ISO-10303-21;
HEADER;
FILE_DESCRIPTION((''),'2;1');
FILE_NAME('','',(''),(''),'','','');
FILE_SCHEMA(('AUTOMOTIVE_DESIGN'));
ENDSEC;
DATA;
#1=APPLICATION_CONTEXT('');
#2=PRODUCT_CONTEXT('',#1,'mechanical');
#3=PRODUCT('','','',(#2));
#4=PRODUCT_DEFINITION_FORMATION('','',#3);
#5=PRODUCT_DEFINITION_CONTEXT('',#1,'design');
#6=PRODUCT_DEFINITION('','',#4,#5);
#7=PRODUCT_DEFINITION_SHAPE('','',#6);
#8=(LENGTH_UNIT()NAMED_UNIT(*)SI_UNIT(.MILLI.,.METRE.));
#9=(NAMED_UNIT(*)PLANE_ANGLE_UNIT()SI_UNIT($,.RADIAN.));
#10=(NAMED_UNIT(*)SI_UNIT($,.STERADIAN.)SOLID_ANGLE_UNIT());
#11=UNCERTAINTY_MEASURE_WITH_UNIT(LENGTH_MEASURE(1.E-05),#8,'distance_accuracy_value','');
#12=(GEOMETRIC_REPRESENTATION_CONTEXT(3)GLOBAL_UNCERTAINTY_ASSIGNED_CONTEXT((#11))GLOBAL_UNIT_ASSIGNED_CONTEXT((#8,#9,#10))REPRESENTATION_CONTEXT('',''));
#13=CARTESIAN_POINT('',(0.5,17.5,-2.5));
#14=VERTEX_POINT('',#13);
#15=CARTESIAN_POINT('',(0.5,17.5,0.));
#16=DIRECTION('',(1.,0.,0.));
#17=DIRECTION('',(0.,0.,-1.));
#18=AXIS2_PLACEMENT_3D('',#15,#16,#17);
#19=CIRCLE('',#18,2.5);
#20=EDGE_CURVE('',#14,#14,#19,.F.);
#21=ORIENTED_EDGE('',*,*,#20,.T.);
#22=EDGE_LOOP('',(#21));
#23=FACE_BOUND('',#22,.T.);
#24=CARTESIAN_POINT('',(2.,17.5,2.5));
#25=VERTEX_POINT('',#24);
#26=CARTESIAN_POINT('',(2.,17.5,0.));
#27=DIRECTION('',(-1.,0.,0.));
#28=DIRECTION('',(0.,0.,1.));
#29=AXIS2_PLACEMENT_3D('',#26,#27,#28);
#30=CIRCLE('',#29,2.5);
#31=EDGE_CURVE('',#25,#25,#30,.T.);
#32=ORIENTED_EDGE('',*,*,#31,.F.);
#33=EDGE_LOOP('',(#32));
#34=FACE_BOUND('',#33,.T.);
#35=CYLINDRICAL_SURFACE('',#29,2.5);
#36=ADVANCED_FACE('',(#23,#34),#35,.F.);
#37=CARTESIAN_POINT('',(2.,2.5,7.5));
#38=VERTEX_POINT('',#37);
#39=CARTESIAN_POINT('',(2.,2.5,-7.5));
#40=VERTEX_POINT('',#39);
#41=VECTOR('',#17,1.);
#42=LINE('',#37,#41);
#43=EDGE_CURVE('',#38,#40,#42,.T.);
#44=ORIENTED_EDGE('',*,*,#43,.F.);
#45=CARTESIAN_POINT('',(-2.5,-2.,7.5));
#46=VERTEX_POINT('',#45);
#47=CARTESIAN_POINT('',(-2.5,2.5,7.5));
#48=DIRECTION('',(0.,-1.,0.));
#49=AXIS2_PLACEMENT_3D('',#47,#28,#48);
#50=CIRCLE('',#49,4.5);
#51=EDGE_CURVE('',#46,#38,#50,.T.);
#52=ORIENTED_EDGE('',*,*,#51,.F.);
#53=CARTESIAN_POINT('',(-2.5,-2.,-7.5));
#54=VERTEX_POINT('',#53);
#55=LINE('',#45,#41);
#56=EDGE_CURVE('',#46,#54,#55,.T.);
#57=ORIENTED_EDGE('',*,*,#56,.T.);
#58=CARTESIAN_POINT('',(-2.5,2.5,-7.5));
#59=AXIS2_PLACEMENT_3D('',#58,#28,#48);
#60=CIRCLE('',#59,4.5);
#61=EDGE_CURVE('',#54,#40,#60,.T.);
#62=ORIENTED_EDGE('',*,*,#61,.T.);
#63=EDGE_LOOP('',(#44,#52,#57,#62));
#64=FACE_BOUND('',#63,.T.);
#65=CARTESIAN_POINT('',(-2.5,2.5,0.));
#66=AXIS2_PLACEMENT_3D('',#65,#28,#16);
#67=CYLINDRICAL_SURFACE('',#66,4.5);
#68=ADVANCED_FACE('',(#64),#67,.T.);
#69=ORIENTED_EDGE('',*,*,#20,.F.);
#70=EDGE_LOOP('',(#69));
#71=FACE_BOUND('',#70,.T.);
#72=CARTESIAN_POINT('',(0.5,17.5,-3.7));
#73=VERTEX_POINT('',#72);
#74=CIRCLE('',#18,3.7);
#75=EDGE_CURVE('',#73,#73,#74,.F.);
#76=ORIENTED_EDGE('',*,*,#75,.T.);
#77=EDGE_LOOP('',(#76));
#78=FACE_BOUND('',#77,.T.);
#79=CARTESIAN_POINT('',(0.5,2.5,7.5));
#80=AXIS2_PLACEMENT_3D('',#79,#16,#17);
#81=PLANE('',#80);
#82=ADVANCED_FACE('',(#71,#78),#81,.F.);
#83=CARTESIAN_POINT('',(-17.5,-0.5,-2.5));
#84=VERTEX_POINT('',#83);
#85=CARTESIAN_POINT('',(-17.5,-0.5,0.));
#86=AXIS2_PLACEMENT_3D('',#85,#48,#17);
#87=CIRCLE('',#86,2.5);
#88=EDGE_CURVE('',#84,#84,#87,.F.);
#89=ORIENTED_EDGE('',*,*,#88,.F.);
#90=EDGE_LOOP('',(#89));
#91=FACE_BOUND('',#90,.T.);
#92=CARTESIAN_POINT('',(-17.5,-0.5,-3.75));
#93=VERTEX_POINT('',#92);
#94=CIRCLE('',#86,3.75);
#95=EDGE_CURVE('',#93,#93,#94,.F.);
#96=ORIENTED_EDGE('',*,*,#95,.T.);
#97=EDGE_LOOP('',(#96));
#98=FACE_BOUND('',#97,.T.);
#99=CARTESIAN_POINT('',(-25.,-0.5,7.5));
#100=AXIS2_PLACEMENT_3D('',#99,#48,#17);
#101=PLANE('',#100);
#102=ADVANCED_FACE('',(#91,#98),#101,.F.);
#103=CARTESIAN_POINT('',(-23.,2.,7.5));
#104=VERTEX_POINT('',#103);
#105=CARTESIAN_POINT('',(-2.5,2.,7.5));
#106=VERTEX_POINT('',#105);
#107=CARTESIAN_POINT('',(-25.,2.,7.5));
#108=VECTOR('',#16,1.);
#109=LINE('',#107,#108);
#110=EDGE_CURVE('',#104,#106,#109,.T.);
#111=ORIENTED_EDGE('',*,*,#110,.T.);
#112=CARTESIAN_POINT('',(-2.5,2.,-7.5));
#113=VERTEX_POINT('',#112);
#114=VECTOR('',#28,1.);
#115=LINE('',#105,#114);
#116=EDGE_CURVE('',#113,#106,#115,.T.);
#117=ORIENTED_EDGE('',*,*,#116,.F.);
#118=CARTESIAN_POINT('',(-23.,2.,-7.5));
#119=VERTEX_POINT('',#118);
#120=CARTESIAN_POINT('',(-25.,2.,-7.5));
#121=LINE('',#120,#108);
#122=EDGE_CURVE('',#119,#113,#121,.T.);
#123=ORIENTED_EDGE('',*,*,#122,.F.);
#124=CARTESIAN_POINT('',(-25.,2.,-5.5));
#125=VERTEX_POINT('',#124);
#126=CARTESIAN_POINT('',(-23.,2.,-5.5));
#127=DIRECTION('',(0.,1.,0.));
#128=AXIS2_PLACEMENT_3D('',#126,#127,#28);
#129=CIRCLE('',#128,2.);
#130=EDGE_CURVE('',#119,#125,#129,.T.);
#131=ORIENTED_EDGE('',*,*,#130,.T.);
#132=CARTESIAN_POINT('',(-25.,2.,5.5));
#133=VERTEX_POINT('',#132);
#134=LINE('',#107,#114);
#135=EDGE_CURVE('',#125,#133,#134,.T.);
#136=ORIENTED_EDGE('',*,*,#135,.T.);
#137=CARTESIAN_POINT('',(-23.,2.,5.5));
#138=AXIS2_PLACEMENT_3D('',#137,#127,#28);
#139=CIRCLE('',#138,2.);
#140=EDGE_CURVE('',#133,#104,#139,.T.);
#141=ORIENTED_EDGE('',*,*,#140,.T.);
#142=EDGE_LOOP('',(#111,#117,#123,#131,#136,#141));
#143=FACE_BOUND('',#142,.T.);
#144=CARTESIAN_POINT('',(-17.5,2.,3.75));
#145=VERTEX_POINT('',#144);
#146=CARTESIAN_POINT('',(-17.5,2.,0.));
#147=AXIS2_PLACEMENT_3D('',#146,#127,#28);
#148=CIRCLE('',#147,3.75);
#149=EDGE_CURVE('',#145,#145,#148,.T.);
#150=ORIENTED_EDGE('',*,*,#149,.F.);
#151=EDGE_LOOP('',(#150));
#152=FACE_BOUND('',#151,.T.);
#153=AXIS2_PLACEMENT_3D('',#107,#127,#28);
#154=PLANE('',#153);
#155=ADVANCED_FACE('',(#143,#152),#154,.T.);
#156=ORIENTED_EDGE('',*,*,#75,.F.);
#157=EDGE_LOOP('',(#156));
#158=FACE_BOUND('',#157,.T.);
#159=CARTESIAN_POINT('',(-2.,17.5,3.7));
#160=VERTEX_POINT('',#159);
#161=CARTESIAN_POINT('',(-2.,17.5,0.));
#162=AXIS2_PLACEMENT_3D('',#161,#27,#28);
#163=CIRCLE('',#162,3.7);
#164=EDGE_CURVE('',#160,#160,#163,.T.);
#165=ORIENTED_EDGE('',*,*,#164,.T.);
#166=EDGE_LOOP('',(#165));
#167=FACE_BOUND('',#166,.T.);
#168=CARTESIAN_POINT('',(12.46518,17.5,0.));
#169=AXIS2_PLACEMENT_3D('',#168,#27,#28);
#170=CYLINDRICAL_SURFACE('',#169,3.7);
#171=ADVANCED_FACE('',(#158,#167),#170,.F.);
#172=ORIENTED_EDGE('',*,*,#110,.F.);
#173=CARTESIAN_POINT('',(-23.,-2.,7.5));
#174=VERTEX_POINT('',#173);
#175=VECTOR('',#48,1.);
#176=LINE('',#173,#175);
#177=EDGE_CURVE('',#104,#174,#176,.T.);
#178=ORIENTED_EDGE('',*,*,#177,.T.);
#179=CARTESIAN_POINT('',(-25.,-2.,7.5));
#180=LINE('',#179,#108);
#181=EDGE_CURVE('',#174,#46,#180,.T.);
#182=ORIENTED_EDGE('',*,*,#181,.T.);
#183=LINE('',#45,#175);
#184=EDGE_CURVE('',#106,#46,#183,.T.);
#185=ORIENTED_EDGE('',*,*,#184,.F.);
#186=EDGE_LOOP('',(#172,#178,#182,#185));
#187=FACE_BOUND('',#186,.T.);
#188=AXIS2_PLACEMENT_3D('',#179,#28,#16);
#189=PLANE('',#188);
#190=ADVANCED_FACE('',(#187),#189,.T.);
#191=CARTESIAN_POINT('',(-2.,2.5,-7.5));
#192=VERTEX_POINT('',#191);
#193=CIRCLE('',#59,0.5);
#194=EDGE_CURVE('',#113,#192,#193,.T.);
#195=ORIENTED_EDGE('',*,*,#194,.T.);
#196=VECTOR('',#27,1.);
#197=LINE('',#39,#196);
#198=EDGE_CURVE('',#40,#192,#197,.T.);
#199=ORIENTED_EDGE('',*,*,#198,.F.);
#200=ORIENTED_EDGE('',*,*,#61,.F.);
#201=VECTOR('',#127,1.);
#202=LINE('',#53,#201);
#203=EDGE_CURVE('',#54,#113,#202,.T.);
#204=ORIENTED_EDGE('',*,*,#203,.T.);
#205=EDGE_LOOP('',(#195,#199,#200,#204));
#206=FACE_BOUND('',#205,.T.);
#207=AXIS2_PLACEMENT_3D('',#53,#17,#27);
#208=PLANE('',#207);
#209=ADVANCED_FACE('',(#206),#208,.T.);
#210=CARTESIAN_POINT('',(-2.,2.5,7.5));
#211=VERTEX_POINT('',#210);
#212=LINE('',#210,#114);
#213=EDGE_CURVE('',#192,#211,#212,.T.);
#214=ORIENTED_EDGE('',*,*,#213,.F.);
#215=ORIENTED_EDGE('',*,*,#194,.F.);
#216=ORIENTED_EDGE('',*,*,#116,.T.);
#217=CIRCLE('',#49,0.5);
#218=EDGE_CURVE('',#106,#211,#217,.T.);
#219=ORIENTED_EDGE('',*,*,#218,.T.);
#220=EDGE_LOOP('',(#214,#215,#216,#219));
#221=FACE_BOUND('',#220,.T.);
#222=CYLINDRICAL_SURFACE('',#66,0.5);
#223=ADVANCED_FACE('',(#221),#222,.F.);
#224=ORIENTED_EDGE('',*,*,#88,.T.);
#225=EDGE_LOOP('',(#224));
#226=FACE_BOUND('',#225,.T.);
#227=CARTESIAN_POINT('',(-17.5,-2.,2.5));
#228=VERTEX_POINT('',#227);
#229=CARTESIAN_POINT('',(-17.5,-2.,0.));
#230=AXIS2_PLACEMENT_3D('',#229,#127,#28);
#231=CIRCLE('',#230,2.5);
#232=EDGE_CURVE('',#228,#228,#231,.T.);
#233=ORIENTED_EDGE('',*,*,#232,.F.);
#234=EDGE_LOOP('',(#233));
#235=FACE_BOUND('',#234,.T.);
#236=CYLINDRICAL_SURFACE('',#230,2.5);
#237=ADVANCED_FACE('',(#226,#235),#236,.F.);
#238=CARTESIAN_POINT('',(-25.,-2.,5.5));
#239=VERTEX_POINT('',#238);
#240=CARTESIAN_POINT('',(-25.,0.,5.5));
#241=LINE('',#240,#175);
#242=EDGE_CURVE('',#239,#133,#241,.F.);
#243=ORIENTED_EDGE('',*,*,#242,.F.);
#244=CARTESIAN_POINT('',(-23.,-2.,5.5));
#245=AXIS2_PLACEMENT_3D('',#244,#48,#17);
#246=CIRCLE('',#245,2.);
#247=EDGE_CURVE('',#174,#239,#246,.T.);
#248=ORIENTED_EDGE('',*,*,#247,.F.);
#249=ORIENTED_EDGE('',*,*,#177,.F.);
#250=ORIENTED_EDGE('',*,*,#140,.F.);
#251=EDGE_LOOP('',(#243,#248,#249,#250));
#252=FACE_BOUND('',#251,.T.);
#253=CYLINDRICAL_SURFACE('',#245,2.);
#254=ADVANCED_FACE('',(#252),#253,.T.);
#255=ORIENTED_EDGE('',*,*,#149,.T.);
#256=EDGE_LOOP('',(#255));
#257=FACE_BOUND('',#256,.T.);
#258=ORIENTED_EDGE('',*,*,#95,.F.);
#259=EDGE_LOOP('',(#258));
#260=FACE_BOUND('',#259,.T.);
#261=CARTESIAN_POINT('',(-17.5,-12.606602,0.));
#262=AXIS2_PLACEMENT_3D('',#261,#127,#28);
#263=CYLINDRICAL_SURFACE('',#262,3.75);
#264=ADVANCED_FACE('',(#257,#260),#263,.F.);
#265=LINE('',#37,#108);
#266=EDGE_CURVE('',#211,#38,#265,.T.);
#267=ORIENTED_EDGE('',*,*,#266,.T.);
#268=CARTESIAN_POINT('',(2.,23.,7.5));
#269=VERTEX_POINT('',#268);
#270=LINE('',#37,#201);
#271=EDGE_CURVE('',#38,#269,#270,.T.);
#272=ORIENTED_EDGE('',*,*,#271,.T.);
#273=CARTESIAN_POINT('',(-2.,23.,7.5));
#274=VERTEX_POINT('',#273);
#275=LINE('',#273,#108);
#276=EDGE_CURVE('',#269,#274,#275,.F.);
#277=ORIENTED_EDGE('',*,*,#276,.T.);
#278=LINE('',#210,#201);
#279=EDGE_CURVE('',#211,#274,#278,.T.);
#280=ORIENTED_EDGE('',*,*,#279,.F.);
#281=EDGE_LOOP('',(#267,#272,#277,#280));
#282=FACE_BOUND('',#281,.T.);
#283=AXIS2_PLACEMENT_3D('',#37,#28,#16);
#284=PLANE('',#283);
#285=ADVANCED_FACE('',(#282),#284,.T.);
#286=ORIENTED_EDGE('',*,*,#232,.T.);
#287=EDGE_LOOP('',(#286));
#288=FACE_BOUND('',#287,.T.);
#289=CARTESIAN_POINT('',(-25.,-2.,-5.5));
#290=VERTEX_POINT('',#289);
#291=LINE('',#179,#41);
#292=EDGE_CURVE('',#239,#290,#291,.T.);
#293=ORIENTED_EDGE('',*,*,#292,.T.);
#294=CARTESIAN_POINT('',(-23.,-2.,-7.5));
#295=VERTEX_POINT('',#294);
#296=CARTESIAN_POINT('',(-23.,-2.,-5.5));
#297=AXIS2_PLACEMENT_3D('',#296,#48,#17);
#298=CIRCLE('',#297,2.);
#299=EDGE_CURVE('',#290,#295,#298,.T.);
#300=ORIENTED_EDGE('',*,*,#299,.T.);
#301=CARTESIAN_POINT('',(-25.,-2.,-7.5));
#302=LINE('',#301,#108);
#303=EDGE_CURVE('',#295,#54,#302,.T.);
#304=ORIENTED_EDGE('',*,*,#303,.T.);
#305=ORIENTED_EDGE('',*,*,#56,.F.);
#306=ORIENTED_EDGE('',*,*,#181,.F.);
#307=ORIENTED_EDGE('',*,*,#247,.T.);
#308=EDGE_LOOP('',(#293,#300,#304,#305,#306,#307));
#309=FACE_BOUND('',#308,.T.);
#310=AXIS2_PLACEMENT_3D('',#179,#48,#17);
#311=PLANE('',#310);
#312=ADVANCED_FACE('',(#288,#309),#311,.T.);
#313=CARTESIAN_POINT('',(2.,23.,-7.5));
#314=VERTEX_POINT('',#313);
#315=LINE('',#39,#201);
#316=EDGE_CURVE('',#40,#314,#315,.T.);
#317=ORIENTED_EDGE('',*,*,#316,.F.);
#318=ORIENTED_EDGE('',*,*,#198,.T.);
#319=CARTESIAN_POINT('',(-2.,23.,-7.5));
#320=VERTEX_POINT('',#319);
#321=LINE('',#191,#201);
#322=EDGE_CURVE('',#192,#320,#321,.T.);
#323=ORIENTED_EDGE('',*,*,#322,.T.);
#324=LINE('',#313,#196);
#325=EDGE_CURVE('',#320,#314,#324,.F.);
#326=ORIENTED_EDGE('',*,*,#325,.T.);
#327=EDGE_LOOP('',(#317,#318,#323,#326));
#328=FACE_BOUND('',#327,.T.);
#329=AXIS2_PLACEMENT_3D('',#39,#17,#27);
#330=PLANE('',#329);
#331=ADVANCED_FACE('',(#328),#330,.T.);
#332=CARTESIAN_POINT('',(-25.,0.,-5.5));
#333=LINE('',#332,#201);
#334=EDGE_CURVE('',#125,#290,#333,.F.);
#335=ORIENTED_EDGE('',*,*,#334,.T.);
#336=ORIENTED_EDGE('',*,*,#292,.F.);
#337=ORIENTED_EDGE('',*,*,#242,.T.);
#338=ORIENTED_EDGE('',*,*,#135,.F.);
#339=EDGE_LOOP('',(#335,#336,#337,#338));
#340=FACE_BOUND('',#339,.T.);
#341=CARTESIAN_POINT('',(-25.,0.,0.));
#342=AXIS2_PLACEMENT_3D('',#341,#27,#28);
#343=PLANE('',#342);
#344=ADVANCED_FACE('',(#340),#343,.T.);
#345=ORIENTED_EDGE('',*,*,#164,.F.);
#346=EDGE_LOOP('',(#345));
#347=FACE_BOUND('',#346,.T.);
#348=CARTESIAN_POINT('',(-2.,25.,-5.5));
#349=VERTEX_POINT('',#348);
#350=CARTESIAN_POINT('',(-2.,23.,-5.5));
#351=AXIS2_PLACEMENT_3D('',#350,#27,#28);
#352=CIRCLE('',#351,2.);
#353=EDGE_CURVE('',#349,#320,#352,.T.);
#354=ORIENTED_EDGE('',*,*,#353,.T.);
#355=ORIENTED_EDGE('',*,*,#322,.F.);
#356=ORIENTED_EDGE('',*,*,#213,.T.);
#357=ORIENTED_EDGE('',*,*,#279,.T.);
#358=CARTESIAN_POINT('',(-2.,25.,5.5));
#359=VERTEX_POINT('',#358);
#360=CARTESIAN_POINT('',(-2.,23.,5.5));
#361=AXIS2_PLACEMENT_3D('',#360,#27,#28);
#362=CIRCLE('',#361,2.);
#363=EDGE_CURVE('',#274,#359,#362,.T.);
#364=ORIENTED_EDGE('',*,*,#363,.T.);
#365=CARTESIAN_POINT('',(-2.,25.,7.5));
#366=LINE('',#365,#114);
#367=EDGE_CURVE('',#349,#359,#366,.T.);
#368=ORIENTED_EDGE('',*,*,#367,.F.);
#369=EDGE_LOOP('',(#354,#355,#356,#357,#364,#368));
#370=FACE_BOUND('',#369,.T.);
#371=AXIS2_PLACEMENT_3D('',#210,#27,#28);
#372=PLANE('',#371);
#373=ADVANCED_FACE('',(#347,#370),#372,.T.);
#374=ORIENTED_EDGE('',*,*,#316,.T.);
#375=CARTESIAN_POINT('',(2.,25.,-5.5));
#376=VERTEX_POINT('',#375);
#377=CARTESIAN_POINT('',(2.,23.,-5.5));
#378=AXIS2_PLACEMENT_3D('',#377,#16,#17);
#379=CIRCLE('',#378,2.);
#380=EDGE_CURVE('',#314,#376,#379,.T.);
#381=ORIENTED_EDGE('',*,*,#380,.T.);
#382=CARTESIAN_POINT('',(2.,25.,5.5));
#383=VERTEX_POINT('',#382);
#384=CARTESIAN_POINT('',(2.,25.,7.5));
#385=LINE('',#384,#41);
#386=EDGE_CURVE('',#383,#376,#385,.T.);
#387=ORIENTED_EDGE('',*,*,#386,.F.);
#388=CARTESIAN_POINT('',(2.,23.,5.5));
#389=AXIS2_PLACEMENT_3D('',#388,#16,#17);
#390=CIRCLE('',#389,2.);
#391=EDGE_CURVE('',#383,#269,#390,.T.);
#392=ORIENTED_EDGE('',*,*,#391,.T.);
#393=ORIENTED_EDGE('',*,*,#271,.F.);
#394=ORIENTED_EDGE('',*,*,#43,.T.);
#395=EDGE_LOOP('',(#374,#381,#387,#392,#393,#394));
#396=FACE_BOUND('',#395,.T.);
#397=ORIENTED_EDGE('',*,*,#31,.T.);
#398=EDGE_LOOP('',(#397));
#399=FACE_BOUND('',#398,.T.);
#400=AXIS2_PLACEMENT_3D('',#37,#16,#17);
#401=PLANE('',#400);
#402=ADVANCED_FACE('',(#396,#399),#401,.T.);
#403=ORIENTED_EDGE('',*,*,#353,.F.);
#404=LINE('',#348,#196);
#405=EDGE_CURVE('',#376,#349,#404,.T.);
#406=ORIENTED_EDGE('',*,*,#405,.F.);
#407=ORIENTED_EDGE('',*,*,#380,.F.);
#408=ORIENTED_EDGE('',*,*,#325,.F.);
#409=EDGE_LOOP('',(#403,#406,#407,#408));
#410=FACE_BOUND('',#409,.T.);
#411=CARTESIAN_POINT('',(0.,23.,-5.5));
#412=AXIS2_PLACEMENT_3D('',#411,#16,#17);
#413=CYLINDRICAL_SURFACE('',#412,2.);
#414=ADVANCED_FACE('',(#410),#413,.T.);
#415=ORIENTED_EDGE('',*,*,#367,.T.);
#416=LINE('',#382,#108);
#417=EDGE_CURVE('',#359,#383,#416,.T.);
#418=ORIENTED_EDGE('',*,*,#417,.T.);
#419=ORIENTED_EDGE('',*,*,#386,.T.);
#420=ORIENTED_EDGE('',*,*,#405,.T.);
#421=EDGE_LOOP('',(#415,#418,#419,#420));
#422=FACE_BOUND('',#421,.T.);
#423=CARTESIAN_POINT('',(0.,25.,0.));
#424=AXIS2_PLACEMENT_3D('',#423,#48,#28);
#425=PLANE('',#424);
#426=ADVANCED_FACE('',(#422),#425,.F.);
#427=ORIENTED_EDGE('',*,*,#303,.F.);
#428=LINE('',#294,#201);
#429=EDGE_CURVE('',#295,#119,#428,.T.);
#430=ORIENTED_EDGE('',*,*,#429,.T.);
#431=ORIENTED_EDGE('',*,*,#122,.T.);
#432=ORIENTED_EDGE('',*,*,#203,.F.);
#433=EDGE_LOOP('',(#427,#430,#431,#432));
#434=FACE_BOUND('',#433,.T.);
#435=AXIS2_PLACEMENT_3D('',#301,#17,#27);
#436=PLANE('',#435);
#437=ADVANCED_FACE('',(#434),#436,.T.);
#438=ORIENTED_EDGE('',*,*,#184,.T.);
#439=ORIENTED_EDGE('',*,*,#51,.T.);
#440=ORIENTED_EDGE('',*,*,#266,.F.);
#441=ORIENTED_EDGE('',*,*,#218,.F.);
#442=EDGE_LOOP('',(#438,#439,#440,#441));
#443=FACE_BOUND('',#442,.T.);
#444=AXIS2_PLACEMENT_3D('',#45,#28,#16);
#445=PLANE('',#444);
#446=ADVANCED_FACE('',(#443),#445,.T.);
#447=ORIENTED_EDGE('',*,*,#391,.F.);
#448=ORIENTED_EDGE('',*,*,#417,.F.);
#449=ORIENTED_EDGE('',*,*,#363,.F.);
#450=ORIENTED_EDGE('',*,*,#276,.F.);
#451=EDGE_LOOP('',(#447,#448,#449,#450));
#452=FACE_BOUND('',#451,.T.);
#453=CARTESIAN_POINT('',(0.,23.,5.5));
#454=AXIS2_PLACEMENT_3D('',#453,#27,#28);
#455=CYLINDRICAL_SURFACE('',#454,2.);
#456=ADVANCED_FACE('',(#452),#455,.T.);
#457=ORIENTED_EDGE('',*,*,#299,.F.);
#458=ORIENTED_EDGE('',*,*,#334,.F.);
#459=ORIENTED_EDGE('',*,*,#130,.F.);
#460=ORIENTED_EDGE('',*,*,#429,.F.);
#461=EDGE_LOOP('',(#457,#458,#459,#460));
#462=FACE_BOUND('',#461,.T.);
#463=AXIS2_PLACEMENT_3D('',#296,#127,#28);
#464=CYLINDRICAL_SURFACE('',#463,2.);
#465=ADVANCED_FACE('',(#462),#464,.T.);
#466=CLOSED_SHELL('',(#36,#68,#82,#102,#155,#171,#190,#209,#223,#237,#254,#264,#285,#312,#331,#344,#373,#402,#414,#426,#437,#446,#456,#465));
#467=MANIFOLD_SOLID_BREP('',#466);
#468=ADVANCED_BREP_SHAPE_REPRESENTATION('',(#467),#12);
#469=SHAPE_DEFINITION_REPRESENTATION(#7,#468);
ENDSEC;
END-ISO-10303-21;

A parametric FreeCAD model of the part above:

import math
import FreeCAD as App
import Part
import Sketcher

V = App.Vector


def edges_at(feature, points):
    """Names of the edges that pass closest to the given points."""
    edges = feature.Shape.Edges
    near = lambda p: min(range(len(edges)), key=lambda i: edges[i].distToShape(Part.Vertex(*p))[0])
    return sorted({f"Edge{near(p) + 1}" for p in points})


def add_polygon(sketch, points):
    """Adds a closed chain of lines whose ends are joined by coincident constraints."""
    first, n = sketch.GeometryCount, len(points)
    for a, b in zip(points, points[1:] + points[:1]):
        sketch.addGeometry(Part.LineSegment(App.Vector(*a, 0), App.Vector(*b, 0)), False)
    for i in range(n):
        sketch.addConstraint(Sketcher.Constraint("Coincident", first + i, 2, first + (i + 1) % n, 1))

doc = App.newDocument("Part")
body = doc.addObject("PartDesign::Body", "Body")

sketch1 = body.newObject("Sketcher::SketchObject", "Sketch")
sketch1.AttachmentSupport = (doc.getObject("YZ_Plane"), [""])
sketch1.MapMode = "FlatFace"
sketch1.AttachmentOffset = App.Placement(V(0, 0, -25), App.Rotation())
add_polygon(sketch1, [(2, 7.5), (-2, 7.5), (-2, -7.5), (2, -7.5)])
sketch1.addConstraint([
    Sketcher.Constraint("Horizontal", 0),
    Sketcher.Constraint("Vertical", 1),
    Sketcher.Constraint("Horizontal", 2),
    Sketcher.Constraint("Vertical", 3),
    Sketcher.Constraint("Symmetric", 0, 2, 2, 2, -1, 1),
    Sketcher.Constraint("DistanceX", 0, 2, 0, 1, 4.0),
    Sketcher.Constraint("DistanceY", 1, 2, 1, 1, 15.0),
])

sketch2 = body.newObject("Sketcher::SketchObject", "Sketch001")
sketch2.AttachmentSupport = (doc.getObject("XY_Plane"), [""])
sketch2.MapMode = "FlatFace"
sketch2.addGeometry([
    Part.LineSegment(V(-25, 0, 0), V(-2.5, 0, 0)),
    Part.ArcOfCircle(Part.Circle(V(-2.5, 2.5, 0), V(0, 0, 1), 2.5), math.radians(-90), math.radians(0)),
    Part.LineSegment(V(0, 2.5, 0), V(0, 25, 0)),
], False)
sketch2.addConstraint([
    Sketcher.Constraint("Tangent", 0, 2, 1, 1),
    Sketcher.Constraint("Tangent", 1, 2, 2, 1),
    Sketcher.Constraint("Horizontal", 0),
    Sketcher.Constraint("Vertical", 2),
    Sketcher.Constraint("PointOnObject", 0, 1, -1),
    Sketcher.Constraint("PointOnObject", 1, 2, -2),
    Sketcher.Constraint("Equal", 0, 2),
    Sketcher.Constraint("Radius", 1, 2.5),
    Sketcher.Constraint("DistanceX", 0, 1, 0, 2, 22.5),
])
doc.recompute()

additivepipe = body.newObject("PartDesign::AdditivePipe", "AdditivePipe")
additivepipe.Profile = sketch1
additivepipe.Spine = (sketch2, ["Edge1", "Edge2", "Edge3"])

sketch3 = body.newObject("Sketcher::SketchObject", "Sketch002")
sketch3.AttachmentSupport = (doc.getObject("YZ_Plane"), [""])
sketch3.MapMode = "FlatFace"
sketch3.AttachmentOffset = App.Placement(V(0, 0, -2), App.Rotation())
sketch3.addGeometry(Part.Circle(V(17.5, 0, 0), V(0, 0, 1), 2.5), False)
sketch3.addConstraint([
    Sketcher.Constraint("PointOnObject", 0, 3, -1),
    Sketcher.Constraint("Diameter", 0, 5.0),
    Sketcher.Constraint("DistanceX", -1, 1, 0, 3, 17.5),
])
pocket1 = body.newObject("PartDesign::Pocket", "Pocket")
pocket1.Profile = sketch3
pocket1.Type = "ThroughAll"
pocket1.Reversed = True
doc.recompute()

fillet = body.newObject("PartDesign::Fillet", "Fillet")
fillet.Base = (pocket1, edges_at(pocket1, [
    (-25, 0, 7.5),
    (0, 25, -7.5),
    (0, 25, 7.5),
    (-25, 0, -7.5),
]))
fillet.Radius = 2

sketch4 = body.newObject("Sketcher::SketchObject", "Sketch003")
sketch4.AttachmentSupport = (doc.getObject("YZ_Plane"), [""])
sketch4.MapMode = "FlatFace"
sketch4.AttachmentOffset = App.Placement(V(0, 0, -2), App.Rotation())
sketch4.addGeometry(Part.Circle(V(17.5, 0, 0), V(0, 0, 1), 3.7), False)
sketch4.addConstraint([
    Sketcher.Constraint("PointOnObject", 0, 3, -1),
    Sketcher.Constraint("Diameter", 0, 7.4),
    Sketcher.Constraint("DistanceX", -1, 1, 0, 3, 17.5),
])
pocket2 = body.newObject("PartDesign::Pocket", "Pocket001")
pocket2.Profile = sketch4
pocket2.Length = 2.5
pocket2.Reversed = True

sketch5 = body.newObject("Sketcher::SketchObject", "Sketch004")
sketch5.AttachmentSupport = (doc.getObject("XZ_Plane"), [""])
sketch5.MapMode = "FlatFace"
sketch5.AttachmentOffset = App.Placement(V(0, 0, -2), App.Rotation())
sketch5.addGeometry(Part.Circle(V(-17.5, 0, 0), V(0, 0, 1), 2.5), False)
sketch5.addConstraint([
    Sketcher.Constraint("PointOnObject", 0, 3, -1),
    Sketcher.Constraint("Diameter", 0, 5.0),
    Sketcher.Constraint("DistanceX", 0, 3, -1, 1, 17.5),
])
pocket3 = body.newObject("PartDesign::Pocket", "Pocket002")
pocket3.Profile = sketch5
pocket3.Type = "ThroughAll"
pocket3.Reversed = True

sketch6 = body.newObject("Sketcher::SketchObject", "Sketch005")
sketch6.AttachmentSupport = (doc.getObject("XZ_Plane"), [""])
sketch6.MapMode = "FlatFace"
sketch6.AttachmentOffset = App.Placement(V(0, 0, -2), App.Rotation())
sketch6.addGeometry(Part.Circle(V(-17.5, 0, 0), V(0, 0, 1), 3.8), False)
sketch6.addConstraint([
    Sketcher.Constraint("PointOnObject", 0, 3, -1),
    Sketcher.Constraint("Diameter", 0, 7.5),
    Sketcher.Constraint("DistanceX", 0, 3, -1, 1, 17.5),
])
pocket4 = body.newObject("PartDesign::Pocket", "Pocket003")
pocket4.Profile = sketch6
pocket4.Length = 2.5
pocket4.Reversed = True

doc.recompute()
